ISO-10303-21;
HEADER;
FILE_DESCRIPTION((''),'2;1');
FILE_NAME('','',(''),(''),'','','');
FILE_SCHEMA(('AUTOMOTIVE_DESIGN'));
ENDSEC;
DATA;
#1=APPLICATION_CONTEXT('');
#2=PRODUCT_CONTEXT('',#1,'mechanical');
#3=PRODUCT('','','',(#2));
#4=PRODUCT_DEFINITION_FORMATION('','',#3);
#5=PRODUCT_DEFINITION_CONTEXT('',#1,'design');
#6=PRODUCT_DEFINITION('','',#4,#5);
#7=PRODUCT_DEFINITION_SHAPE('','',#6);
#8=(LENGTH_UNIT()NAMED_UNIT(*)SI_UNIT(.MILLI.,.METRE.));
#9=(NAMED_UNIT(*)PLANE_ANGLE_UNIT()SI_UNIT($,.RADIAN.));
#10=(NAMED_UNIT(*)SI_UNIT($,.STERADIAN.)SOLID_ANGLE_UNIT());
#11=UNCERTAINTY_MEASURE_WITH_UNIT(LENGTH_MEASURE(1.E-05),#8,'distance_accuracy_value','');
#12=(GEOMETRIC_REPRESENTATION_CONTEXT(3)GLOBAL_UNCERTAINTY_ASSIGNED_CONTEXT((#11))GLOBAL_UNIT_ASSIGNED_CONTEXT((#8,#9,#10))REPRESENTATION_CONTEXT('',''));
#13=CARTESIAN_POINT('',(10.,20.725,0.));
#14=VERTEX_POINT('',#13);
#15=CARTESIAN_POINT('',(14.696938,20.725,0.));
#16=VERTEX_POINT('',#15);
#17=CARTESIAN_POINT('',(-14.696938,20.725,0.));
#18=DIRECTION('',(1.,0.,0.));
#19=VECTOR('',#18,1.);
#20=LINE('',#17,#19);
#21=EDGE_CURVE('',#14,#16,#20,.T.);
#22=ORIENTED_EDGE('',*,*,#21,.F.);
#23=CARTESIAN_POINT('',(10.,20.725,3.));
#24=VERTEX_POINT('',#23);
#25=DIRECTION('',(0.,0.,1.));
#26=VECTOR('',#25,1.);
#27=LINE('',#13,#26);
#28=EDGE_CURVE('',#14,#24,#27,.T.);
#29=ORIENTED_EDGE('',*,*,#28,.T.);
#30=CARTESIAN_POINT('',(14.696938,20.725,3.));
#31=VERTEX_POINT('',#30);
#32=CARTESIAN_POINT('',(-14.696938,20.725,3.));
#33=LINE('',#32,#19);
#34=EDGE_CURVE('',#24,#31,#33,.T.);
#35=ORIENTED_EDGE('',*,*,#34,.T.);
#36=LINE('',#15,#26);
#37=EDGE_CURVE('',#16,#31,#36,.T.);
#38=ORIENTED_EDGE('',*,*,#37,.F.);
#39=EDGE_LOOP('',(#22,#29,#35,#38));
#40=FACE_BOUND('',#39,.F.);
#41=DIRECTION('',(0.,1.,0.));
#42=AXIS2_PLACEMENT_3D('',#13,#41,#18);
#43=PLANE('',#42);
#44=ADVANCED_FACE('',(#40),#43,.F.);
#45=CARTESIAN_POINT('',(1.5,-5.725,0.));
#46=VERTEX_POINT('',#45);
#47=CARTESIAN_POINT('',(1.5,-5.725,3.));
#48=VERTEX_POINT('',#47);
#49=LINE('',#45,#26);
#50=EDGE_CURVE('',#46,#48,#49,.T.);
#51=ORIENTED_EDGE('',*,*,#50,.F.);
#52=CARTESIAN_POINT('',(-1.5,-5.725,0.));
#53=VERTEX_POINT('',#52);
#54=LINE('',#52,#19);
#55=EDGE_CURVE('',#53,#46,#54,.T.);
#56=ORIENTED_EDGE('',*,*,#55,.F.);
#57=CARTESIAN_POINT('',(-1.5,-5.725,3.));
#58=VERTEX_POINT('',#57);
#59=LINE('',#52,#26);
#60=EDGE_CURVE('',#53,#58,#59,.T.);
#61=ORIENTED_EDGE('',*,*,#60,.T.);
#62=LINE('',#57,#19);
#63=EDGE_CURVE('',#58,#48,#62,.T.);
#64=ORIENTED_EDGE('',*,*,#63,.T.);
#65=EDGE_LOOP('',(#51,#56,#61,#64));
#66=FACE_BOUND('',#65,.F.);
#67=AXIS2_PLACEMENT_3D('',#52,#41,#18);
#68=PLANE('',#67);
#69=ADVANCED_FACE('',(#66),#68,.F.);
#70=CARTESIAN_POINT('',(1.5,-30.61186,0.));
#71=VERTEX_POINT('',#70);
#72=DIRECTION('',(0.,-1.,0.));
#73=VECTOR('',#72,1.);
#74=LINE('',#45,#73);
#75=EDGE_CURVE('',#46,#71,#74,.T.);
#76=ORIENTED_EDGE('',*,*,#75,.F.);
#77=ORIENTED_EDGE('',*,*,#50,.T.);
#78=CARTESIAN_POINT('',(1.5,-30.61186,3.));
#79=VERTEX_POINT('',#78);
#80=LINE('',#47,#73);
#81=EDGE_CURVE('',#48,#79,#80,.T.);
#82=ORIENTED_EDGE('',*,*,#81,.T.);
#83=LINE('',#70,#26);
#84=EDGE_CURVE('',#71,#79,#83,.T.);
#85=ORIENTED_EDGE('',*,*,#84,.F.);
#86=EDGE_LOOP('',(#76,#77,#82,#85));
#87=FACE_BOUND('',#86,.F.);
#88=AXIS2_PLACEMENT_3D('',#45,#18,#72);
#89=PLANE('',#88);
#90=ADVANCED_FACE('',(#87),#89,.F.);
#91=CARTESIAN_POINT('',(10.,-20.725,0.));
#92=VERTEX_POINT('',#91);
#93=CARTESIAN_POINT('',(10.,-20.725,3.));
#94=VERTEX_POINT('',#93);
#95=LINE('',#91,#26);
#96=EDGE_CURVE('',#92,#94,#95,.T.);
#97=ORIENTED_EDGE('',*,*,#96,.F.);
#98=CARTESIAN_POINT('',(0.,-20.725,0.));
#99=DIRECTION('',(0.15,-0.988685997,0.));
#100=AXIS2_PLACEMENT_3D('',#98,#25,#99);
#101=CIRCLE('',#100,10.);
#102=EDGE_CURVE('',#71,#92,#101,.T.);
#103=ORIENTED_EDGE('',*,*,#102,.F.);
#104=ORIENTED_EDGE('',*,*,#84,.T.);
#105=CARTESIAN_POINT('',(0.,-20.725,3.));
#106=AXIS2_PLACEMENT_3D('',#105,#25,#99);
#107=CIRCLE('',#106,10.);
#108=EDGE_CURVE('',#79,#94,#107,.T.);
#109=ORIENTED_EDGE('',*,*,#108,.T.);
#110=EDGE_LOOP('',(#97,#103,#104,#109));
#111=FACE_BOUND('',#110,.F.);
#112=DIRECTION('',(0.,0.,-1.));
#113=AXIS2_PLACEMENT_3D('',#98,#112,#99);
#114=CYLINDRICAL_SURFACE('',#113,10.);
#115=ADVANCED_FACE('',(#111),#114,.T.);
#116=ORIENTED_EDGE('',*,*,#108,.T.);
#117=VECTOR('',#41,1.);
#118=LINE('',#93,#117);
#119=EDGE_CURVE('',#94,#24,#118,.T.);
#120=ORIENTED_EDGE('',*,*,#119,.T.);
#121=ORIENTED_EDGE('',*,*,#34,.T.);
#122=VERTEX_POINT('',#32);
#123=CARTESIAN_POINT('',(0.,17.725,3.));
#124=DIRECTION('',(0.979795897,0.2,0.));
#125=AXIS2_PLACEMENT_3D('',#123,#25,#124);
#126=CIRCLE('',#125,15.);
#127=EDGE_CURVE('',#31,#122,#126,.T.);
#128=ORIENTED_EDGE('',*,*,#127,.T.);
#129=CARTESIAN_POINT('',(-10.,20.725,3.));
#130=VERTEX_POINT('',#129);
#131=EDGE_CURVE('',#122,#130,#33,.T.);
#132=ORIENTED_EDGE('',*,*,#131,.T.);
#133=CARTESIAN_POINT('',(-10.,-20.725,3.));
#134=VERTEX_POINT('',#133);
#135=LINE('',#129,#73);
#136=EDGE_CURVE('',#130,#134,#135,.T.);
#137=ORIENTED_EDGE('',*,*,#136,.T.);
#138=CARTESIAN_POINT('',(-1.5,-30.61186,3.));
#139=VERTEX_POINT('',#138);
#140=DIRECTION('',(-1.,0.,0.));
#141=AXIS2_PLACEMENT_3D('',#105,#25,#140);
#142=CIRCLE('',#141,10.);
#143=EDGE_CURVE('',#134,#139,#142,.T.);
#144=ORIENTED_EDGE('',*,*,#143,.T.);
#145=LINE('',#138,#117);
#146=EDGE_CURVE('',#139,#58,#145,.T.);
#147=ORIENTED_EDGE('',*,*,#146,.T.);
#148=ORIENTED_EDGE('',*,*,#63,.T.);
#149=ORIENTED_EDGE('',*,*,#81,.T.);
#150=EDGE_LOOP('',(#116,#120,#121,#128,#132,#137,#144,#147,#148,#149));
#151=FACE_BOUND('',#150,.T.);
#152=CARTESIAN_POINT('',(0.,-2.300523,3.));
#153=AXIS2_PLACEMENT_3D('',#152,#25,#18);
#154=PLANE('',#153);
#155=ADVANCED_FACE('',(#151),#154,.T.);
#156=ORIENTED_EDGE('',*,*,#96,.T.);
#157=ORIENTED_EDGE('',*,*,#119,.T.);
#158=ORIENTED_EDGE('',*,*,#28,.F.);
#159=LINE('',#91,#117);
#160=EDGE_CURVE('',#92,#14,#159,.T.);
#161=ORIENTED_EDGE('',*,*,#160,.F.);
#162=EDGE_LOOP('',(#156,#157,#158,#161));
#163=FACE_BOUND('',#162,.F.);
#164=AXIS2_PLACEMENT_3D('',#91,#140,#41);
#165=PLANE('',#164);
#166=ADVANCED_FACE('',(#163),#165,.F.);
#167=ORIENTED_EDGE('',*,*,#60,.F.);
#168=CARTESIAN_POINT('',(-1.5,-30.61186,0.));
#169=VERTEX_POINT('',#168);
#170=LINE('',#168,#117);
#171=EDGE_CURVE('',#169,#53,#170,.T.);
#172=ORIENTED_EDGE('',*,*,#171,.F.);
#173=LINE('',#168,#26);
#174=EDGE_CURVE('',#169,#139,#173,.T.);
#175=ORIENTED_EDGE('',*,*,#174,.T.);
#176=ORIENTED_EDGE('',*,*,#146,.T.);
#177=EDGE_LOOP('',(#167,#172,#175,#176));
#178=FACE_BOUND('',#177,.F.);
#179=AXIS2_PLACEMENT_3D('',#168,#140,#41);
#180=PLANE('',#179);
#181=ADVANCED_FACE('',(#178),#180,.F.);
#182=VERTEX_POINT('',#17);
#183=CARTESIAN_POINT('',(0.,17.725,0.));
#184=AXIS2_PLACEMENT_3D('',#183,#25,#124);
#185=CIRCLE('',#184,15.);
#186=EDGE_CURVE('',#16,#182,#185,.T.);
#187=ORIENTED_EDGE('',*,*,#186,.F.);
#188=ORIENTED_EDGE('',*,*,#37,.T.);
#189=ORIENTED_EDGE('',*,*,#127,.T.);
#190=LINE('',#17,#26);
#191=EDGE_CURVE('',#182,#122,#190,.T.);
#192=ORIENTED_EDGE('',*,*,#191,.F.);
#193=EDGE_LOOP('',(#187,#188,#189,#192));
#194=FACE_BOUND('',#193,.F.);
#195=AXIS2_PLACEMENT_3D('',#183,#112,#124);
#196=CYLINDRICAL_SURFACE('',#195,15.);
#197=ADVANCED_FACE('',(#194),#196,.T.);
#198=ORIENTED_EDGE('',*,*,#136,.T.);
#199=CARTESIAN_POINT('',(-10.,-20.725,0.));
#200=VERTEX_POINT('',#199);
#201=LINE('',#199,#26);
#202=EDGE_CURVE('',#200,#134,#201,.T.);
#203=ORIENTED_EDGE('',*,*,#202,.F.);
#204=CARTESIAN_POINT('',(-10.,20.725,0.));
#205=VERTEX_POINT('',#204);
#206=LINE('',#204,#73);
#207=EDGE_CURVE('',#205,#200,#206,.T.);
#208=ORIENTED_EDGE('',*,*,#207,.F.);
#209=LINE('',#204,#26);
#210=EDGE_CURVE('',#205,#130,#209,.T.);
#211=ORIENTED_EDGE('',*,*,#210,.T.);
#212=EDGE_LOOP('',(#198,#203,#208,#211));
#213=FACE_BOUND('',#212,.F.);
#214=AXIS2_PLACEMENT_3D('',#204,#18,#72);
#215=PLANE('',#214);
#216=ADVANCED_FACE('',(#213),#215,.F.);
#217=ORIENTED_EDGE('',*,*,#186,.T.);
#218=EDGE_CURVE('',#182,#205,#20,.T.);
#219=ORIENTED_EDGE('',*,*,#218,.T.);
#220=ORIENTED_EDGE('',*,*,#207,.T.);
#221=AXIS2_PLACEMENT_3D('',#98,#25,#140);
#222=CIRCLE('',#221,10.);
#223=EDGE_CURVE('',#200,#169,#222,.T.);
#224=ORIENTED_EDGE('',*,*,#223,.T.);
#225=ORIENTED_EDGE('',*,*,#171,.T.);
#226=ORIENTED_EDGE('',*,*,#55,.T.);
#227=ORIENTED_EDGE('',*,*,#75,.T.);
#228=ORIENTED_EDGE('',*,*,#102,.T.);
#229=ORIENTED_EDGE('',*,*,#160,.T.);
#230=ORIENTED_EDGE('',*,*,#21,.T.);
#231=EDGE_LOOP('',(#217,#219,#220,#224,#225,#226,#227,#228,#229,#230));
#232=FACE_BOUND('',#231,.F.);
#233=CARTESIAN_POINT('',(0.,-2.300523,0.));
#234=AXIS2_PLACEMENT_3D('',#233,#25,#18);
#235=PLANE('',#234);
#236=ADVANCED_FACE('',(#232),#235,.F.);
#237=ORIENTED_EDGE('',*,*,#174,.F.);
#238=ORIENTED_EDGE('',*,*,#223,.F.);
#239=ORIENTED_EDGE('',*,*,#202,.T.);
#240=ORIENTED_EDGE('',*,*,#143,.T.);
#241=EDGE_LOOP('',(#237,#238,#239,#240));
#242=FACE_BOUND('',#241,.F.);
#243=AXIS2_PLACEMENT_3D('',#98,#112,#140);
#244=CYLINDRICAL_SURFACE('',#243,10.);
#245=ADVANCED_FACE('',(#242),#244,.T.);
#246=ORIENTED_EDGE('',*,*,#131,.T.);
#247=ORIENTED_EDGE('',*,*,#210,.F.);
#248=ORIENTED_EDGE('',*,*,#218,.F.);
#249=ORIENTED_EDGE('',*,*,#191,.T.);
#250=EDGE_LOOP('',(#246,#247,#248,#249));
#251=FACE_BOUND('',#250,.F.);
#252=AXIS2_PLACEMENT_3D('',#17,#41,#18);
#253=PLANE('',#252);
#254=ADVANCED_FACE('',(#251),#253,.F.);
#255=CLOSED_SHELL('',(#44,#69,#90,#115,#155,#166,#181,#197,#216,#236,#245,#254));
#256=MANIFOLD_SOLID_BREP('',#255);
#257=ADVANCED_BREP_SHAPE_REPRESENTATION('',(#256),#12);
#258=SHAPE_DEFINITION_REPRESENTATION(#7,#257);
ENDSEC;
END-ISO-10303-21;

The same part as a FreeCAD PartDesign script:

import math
import FreeCAD as App
import Part
import Sketcher
from FreeCAD import Vector

doc = App.newDocument("Part")
body = doc.addObject("PartDesign::Body", "Body")

sketch1 = doc.addObject("Sketcher::SketchObject", "Sketch")
body.addObject(sketch1)
sketch1.AttachmentSupport = (doc.XY_Plane, [""])
sketch1.MapMode = "FlatFace"
sketch1.addGeometry([
    Part.LineSegment(Vector(-10, 20.7, 0), Vector(-10, -20.7, 0)),
    Part.ArcOfCircle(Part.Circle(Vector(0, -20.7, 0), Vector(0, 0, 1), 10), math.radians(180), math.radians(261)),
    Part.LineSegment(Vector(-1.5, -30.6, 0), Vector(-1.5, -5.7, 0)),
    Part.LineSegment(Vector(-1.5, -5.7, 0), Vector(1.5, -5.7, 0)),
    Part.LineSegment(Vector(1.5, -5.7, 0), Vector(1.5, -30.6, 0)),
    Part.ArcOfCircle(Part.Circle(Vector(0, -20.7, 0), Vector(0, 0, 1), 10), math.radians(-81), math.radians(0)),
    Part.LineSegment(Vector(10, -20.7, 0), Vector(10, 20.7, 0)),
    Part.LineSegment(Vector(10, 20.7, 0), Vector(14.7, 20.7, 0)),
    Part.ArcOfCircle(Part.Circle(Vector(0, 17.7, 0), Vector(0, 0, 1), 15), math.radians(12), math.radians(168)),
    Part.LineSegment(Vector(-14.7, 20.7, 0), Vector(-10, 20.7, 0)),
], False)
sketch1.addConstraint([
    Sketcher.Constraint("Tangent", 0, 2, 1, 1),
    Sketcher.Constraint("Coincident", 1, 2, 2, 1),
    Sketcher.Constraint("Coincident", 2, 2, 3, 1),
    Sketcher.Constraint("Coincident", 3, 2, 4, 1),
    Sketcher.Constraint("Coincident", 4, 2, 5, 1),
    Sketcher.Constraint("Tangent", 5, 2, 6, 1),
    Sketcher.Constraint("Coincident", 6, 2, 7, 1),
    Sketcher.Constraint("Coincident", 7, 2, 8, 1),
    Sketcher.Constraint("Coincident", 8, 2, 9, 1),
    Sketcher.Constraint("Coincident", 9, 2, 0, 1),
    Sketcher.Constraint("Vertical", 0),
    Sketcher.Constraint("Vertical", 2),
    Sketcher.Constraint("Horizontal", 3),
    Sketcher.Constraint("Vertical", 4),
    Sketcher.Constraint("Vertical", 6),
    Sketcher.Constraint("Horizontal", 7),
    Sketcher.Constraint("Horizontal", 9),
    Sketcher.Constraint("Coincident", 5, 3, 1, 3),
    Sketcher.Constraint("Equal", 1, 5),
    Sketcher.Constraint("Symmetric", 0, 2, 6, 2, -1, 1),
    Sketcher.Constraint("Symmetric", 7, 2, 8, 2, -2),
    Sketcher.Constraint("Horizontal", 1, 2, 4, 2),
    Sketcher.Constraint("Radius", 1, 10.0),
    Sketcher.Constraint("Radius", 8, 15.0),
    Sketcher.Constraint("DistanceX", 3, 1, 3, 2, 3.0),
    Sketcher.Constraint("DistanceY", 1, 3, 2, 2, 15.0),
    Sketcher.Constraint("DistanceY", 8, 3, 6, 2, 3.0),
    Sketcher.Constraint("DistanceY", 0, 2, 0, 1, 41.45),
])
pad1 = doc.addObject("PartDesign::Pad", "Pad")
body.addObject(pad1)
pad1.Profile = sketch1
pad1.Length = 3

doc.recompute()
